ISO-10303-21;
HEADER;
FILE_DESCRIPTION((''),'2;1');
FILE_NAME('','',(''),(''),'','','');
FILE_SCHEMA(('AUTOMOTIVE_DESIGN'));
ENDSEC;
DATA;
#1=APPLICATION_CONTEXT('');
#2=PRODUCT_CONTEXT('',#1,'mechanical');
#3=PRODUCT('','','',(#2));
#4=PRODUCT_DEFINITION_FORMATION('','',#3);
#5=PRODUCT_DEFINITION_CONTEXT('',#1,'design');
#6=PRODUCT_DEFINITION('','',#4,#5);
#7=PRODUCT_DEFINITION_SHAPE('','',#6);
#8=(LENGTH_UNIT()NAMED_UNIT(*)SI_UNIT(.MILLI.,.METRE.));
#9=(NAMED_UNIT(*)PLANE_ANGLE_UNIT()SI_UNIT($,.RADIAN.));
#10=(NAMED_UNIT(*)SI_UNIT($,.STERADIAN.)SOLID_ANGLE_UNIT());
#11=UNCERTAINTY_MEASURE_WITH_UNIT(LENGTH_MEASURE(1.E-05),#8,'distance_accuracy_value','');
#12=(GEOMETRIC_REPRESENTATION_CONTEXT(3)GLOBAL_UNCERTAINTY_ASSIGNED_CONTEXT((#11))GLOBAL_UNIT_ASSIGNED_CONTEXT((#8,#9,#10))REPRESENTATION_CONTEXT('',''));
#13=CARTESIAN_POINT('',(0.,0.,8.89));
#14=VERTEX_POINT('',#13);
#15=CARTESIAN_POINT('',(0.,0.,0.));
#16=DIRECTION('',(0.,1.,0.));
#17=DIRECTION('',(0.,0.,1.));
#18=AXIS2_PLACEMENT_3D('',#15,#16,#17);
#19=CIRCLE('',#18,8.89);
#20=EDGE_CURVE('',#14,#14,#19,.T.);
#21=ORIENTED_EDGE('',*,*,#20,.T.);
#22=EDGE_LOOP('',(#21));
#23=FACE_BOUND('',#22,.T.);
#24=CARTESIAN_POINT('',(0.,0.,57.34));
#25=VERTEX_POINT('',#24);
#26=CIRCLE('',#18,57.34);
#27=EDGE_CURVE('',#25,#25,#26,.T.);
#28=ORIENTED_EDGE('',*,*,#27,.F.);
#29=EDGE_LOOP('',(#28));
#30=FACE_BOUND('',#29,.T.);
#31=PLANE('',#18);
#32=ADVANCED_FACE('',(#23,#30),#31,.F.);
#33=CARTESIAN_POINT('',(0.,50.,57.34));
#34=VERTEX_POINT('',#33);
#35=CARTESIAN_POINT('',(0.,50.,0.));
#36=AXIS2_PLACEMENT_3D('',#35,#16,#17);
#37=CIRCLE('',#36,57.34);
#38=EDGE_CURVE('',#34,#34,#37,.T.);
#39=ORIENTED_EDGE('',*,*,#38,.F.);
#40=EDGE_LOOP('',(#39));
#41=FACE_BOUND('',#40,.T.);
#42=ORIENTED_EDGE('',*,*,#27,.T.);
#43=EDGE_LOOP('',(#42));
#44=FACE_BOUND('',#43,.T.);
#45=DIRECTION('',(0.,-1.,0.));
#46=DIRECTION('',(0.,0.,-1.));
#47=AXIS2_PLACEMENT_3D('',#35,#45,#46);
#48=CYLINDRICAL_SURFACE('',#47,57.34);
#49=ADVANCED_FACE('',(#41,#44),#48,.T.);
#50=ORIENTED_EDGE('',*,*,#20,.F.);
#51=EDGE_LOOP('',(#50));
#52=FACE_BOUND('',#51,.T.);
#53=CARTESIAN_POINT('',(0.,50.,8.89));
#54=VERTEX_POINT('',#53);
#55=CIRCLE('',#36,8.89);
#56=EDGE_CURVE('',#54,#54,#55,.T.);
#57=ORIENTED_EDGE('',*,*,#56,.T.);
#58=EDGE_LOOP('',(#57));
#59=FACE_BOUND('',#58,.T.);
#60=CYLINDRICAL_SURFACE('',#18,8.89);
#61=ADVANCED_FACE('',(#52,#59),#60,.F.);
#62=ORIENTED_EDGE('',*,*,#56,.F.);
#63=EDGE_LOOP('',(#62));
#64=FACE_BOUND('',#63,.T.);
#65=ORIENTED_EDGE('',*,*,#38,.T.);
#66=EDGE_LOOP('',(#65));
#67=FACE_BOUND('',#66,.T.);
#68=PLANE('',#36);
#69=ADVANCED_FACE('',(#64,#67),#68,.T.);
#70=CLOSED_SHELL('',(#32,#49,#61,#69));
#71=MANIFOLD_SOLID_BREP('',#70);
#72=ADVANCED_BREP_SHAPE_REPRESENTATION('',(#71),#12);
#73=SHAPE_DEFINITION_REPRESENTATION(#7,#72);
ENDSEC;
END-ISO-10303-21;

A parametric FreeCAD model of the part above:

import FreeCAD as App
import Part
import Sketcher

doc = App.newDocument("Part")
body = doc.addObject("PartDesign::Body", "Body")

sketch1 = body.newObject("Sketcher::SketchObject", "Sketch")
sketch1.AttachmentSupport = (doc.getObject("XZ_Plane"), [""])
sketch1.MapMode = "FlatFace"
sketch1.addGeometry(Part.Circle(App.Vector(0, 0, 0), App.Vector(0, 0, 1), 57.34), False)
sketch1.addConstraint([
    Sketcher.Constraint("Coincident", 0, 3, -1, 1),
    Sketcher.Constraint("Diameter", 0, 114.68),
])
pad1 = body.newObject("PartDesign::Pad", "Pad")
pad1.Profile = sketch1
pad1.Length = 50
pad1.Reversed = True

sketch2 = body.newObject("Sketcher::SketchObject", "Sketch001")
sketch2.AttachmentSupport = (doc.getObject("XZ_Plane"), [""])
sketch2.MapMode = "FlatFace"
sketch2.AttachmentOffset = App.Placement(App.Vector(0, 0, -50), App.Rotation())
sketch2.addGeometry(Part.Circle(App.Vector(0, 0, 0), App.Vector(0, 0, 1), 8.89), False)
sketch2.addConstraint([
    Sketcher.Constraint("Coincident", 0, 3, -1, 1),
    Sketcher.Constraint("Diameter", 0, 17.78),
])
pocket1 = body.newObject("PartDesign::Pocket", "Pocket")
pocket1.Profile = sketch2
pocket1.Length = 50
pocket1.Reversed = True

doc.recompute()
